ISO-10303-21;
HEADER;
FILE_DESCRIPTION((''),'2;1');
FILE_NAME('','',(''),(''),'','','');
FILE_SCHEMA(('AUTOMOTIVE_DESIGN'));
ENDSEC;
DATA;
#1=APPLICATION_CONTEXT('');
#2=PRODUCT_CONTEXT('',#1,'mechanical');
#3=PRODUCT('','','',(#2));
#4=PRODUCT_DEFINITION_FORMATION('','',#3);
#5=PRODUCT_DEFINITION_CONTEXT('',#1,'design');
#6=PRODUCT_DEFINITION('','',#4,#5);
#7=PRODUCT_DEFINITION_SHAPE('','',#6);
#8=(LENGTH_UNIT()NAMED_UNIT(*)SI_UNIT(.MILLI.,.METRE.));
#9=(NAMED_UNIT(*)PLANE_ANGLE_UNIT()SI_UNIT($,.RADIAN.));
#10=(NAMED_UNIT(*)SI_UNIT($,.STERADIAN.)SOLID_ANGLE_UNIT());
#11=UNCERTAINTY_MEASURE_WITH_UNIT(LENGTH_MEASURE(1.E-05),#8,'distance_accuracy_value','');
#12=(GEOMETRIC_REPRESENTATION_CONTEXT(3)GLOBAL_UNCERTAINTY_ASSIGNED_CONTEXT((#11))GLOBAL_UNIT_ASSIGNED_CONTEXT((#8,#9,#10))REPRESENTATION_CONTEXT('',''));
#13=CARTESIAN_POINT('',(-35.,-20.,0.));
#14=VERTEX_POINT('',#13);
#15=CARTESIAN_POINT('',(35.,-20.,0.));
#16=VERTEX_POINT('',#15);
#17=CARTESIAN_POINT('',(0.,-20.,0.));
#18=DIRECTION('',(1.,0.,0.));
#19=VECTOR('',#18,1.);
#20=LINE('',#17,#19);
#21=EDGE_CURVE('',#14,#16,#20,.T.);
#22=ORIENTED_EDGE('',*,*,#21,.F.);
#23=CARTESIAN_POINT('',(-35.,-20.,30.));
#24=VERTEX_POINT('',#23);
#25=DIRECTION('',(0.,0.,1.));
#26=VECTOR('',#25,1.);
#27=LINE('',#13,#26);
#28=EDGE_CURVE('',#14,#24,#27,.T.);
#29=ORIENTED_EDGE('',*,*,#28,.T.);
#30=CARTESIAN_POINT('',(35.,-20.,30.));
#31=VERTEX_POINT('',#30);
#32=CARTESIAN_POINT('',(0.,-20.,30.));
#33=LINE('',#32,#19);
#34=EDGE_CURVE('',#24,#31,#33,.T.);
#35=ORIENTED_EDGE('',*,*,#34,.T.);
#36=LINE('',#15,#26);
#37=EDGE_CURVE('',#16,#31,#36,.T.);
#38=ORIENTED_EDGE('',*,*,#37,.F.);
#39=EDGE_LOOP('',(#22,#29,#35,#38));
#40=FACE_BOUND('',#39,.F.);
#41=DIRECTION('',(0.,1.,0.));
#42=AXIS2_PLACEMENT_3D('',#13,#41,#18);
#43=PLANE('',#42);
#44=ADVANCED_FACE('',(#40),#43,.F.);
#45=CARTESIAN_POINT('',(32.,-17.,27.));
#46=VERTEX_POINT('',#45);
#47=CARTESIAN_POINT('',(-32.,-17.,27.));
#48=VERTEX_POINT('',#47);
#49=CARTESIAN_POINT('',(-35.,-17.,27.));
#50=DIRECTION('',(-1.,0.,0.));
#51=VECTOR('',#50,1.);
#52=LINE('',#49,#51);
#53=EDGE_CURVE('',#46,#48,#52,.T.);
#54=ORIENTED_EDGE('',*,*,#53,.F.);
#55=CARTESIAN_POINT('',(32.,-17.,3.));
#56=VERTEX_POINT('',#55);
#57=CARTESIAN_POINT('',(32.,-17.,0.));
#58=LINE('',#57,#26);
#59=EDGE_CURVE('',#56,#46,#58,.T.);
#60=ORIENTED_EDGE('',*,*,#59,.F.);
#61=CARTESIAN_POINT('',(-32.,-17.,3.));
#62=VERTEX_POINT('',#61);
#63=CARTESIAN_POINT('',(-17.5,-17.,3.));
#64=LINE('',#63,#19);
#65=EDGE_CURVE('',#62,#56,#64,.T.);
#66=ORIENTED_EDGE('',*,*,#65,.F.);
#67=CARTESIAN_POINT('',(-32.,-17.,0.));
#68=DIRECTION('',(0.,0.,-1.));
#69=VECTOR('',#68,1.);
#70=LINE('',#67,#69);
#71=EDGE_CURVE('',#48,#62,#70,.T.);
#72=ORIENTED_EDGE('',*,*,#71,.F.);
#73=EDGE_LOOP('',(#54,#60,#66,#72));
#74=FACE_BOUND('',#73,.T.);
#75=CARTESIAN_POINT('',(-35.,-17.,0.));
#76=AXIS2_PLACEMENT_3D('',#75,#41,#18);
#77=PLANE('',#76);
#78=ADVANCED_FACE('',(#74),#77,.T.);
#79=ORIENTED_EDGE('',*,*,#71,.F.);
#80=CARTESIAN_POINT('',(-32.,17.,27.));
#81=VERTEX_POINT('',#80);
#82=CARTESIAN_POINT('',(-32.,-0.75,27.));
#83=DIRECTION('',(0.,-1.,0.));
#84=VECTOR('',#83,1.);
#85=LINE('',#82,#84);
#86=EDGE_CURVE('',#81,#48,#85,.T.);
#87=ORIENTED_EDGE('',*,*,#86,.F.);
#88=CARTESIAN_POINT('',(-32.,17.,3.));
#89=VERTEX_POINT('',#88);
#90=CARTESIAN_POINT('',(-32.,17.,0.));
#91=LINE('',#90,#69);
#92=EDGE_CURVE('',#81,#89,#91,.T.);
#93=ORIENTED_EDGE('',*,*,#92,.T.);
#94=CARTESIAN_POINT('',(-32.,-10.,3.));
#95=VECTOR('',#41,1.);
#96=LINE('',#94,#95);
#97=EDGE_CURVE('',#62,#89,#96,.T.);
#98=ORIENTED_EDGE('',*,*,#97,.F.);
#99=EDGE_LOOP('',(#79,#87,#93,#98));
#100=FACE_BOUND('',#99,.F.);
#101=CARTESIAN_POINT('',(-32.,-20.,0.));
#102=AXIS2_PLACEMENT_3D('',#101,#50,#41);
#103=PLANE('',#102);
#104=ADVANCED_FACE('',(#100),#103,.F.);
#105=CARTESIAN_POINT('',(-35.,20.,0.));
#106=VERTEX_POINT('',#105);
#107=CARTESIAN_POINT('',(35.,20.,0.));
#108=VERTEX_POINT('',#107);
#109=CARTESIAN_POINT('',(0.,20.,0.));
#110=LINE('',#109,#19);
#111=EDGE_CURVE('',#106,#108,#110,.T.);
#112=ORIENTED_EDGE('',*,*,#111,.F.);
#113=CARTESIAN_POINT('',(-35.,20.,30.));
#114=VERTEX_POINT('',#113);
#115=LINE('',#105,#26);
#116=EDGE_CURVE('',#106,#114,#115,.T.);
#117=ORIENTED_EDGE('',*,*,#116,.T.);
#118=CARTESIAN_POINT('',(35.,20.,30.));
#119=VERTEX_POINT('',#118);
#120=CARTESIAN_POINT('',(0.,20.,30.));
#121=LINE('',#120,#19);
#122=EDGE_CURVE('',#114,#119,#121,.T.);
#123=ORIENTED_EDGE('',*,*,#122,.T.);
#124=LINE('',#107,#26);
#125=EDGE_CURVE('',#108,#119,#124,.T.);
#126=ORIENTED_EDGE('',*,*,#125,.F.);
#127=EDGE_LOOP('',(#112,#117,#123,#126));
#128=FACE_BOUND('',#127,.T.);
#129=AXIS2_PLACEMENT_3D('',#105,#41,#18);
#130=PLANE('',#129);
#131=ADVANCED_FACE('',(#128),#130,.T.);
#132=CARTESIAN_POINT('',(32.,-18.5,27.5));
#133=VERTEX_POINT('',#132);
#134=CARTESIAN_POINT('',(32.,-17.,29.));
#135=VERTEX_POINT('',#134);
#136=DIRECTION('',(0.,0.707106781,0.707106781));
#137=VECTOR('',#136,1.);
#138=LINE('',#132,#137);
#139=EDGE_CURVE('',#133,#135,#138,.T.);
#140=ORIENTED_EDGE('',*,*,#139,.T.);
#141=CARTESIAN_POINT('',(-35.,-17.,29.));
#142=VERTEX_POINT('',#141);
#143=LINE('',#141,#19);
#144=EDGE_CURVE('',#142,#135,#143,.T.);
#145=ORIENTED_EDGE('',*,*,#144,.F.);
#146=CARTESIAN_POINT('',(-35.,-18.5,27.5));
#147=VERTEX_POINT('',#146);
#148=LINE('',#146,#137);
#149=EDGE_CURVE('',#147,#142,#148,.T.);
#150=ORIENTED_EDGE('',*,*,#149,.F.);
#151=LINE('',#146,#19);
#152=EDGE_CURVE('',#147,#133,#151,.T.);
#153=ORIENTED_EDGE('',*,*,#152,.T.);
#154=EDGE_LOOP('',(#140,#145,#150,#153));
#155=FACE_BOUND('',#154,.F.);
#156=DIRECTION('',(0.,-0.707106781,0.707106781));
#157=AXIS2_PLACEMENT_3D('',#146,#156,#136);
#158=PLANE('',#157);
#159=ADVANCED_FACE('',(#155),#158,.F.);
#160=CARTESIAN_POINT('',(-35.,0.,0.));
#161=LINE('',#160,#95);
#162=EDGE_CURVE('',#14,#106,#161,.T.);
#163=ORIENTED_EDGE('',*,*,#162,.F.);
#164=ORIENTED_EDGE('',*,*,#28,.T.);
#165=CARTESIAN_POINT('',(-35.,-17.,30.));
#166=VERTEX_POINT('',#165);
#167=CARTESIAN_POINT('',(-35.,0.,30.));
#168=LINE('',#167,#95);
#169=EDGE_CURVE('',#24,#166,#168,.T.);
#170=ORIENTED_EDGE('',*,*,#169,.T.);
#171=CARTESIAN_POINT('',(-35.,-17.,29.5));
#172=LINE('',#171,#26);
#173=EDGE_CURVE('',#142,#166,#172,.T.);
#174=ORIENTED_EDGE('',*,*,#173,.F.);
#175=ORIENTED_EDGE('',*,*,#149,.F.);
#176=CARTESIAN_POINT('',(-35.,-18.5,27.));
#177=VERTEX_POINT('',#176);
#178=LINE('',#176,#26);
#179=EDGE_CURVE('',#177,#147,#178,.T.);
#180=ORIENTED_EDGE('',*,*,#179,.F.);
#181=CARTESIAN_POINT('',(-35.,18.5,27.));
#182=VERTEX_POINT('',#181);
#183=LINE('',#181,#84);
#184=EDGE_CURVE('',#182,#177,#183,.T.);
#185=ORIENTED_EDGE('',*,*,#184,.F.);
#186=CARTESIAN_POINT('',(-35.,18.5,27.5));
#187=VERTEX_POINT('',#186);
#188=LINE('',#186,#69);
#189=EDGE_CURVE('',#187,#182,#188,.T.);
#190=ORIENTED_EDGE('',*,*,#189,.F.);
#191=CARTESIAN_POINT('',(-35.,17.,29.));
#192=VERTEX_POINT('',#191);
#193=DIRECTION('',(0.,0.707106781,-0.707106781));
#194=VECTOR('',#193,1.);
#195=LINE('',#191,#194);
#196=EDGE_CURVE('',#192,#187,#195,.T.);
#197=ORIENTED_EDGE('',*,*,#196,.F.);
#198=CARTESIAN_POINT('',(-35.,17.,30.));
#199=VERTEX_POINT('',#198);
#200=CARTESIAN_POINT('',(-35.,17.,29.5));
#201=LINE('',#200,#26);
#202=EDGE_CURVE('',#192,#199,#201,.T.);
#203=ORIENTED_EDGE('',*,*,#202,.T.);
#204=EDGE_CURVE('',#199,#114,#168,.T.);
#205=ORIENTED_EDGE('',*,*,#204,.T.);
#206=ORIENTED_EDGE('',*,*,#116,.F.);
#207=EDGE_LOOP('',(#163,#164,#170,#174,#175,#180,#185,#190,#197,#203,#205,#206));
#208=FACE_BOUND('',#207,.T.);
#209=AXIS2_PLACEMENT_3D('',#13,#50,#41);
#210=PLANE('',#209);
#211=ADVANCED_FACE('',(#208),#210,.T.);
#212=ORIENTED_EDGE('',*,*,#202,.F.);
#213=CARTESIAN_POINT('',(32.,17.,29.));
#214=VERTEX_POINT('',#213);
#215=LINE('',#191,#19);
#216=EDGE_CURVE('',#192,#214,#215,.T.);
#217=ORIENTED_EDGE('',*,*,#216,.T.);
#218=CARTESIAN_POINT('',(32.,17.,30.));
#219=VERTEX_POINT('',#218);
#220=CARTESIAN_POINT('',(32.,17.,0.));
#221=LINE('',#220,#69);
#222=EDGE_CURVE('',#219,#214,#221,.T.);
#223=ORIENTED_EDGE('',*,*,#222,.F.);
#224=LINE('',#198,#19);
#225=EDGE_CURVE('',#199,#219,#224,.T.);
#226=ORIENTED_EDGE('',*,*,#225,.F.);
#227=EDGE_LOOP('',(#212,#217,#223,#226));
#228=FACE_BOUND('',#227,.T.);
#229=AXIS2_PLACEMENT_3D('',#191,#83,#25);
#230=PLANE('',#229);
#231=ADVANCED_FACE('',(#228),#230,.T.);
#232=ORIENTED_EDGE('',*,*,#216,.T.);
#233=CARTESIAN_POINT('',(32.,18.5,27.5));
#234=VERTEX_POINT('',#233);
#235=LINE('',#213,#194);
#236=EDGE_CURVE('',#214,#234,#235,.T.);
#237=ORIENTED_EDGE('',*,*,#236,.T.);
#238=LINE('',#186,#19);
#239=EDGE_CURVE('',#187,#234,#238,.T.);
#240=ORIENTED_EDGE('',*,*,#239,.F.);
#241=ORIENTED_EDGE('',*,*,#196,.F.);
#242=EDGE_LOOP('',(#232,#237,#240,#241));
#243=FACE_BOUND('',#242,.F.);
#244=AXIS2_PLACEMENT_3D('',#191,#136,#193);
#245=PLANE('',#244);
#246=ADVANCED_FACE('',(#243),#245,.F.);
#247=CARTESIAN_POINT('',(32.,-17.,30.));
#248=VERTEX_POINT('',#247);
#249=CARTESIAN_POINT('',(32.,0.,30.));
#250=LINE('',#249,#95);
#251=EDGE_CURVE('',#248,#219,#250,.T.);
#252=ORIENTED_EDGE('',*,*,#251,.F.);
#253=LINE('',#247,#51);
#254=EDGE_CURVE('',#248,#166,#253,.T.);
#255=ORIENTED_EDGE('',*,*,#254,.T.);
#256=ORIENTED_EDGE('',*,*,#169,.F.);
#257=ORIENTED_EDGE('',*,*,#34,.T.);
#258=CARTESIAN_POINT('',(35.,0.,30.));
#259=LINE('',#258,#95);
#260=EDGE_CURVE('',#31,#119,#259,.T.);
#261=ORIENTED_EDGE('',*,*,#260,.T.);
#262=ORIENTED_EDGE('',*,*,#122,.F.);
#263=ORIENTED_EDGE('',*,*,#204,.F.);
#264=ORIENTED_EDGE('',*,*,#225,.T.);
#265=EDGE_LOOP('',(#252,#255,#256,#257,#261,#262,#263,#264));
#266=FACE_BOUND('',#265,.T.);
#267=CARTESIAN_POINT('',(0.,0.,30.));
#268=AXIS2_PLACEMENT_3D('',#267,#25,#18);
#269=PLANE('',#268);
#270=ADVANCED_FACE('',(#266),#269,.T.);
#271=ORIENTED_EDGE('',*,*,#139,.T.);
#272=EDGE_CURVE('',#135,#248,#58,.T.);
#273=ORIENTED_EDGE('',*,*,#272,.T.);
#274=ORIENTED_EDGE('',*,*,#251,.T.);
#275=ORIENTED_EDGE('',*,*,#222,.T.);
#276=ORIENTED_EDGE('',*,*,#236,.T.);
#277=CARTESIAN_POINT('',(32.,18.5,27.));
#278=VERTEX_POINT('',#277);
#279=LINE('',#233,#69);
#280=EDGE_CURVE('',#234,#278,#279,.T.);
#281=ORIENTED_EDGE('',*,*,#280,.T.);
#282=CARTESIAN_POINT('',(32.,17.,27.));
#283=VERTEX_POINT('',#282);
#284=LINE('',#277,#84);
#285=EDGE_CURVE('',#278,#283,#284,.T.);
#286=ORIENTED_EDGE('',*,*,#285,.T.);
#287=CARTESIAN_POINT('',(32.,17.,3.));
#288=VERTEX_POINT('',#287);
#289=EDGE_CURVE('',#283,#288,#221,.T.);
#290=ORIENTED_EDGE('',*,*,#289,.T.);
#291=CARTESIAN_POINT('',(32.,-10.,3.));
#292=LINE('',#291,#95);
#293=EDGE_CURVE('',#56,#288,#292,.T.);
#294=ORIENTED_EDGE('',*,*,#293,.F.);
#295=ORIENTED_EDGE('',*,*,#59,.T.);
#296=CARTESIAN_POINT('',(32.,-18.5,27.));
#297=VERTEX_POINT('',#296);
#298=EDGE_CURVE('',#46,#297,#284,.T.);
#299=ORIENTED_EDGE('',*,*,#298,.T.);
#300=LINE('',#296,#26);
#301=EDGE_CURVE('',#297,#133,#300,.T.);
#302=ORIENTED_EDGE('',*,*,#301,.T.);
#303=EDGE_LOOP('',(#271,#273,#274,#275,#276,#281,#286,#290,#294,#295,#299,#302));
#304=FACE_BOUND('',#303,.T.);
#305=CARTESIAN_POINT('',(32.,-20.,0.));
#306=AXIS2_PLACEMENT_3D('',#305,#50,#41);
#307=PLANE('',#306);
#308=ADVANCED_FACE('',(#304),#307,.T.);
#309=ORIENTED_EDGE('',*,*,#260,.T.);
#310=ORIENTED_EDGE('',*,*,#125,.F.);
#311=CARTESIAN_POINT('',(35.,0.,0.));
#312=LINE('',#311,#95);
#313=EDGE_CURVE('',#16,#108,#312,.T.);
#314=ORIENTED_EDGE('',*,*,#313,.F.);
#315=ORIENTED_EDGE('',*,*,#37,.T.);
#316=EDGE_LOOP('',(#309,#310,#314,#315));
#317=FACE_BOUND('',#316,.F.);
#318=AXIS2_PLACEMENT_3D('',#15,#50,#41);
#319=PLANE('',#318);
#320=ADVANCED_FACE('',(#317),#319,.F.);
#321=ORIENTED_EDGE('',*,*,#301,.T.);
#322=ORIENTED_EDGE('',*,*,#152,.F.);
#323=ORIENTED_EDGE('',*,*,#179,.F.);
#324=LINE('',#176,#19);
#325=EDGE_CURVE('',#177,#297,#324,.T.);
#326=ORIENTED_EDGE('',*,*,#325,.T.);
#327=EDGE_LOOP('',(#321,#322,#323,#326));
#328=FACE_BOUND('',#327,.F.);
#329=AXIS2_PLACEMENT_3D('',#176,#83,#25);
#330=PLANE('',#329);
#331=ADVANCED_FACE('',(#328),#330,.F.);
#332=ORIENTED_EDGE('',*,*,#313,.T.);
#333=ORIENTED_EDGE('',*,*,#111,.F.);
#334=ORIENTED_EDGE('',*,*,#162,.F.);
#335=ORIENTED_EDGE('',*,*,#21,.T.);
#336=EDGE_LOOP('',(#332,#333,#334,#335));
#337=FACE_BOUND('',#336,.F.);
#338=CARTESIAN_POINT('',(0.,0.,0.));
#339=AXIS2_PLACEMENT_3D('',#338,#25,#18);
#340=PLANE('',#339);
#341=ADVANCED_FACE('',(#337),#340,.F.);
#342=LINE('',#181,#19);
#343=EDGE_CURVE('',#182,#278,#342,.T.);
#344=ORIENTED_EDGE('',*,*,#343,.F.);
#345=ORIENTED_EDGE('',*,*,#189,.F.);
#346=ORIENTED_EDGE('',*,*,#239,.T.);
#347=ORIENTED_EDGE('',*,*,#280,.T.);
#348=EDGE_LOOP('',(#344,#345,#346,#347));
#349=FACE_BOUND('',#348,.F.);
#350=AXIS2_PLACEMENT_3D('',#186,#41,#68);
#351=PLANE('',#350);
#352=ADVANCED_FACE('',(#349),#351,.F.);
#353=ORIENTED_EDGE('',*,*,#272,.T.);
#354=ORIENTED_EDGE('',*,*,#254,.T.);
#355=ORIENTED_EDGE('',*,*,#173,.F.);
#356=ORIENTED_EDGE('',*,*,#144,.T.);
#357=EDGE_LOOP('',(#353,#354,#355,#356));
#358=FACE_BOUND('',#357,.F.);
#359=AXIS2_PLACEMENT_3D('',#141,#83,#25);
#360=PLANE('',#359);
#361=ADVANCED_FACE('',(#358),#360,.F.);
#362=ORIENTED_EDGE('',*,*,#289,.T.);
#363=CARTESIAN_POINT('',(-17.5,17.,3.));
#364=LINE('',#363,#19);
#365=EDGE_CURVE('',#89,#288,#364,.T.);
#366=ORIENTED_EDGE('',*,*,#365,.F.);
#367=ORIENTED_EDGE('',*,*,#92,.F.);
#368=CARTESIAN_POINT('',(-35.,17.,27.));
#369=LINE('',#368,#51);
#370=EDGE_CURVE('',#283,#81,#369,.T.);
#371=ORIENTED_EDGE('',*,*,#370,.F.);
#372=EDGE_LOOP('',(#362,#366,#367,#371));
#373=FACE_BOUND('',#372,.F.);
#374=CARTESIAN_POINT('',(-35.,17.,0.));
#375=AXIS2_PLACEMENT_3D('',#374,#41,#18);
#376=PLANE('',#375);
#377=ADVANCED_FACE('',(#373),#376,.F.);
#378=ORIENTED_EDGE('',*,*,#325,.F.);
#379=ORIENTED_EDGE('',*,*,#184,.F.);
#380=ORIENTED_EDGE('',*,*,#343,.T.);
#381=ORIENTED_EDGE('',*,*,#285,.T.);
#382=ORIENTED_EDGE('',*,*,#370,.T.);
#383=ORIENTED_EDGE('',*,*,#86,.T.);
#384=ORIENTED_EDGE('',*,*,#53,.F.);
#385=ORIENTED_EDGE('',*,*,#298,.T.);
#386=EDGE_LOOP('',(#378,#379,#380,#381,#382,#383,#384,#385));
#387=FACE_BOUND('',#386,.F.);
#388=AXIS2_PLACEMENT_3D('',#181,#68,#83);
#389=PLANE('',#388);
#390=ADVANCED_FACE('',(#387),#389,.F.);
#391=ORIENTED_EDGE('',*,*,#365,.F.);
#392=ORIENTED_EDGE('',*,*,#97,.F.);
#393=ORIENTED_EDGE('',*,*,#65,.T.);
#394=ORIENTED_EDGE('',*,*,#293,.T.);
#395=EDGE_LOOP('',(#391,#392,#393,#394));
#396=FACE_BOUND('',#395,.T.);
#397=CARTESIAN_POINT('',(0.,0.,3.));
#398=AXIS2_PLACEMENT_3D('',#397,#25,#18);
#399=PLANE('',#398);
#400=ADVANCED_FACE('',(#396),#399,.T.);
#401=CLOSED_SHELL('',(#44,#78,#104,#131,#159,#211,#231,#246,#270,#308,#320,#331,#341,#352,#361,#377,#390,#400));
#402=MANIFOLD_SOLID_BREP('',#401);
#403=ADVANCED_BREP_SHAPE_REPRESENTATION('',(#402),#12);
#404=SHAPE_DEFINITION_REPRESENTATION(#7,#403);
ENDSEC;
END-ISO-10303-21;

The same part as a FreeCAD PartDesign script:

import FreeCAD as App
import Part
import Sketcher

V = App.Vector


def faces_at(feature, points):
    """Names of the faces that lie closest to the given points."""
    faces = feature.Shape.Faces
    near = lambda p: min(range(len(faces)), key=lambda i: faces[i].distToShape(Part.Vertex(*p))[0])
    return sorted({f"Face{near(p) + 1}" for p in points})

doc = App.newDocument("Part")
body = doc.addObject("PartDesign::Body", "Body")

sketch1 = body.newObject("Sketcher::SketchObject", "Sketch")
sketch1.AttachmentSupport = (doc.getObject("XY_Plane"), [""])
sketch1.MapMode = "FlatFace"
sketch1.addGeometry([
    Part.LineSegment(V(-35, 20, 0), V(-35, -20, 0)),
    Part.LineSegment(V(-35, -20, 0), V(35, -20, 0)),
    Part.LineSegment(V(35, -20, 0), V(35, 20, 0)),
    Part.LineSegment(V(35, 20, 0), V(-35, 20, 0)),
], False)
sketch1.addConstraint([
    Sketcher.Constraint("Coincident", 0, 2, 1, 1),
    Sketcher.Constraint("Coincident", 1, 2, 2, 1),
    Sketcher.Constraint("Coincident", 2, 2, 3, 1),
    Sketcher.Constraint("Coincident", 3, 2, 0, 1),
    Sketcher.Constraint("Vertical", 0),
    Sketcher.Constraint("Horizontal", 1),
    Sketcher.Constraint("Vertical", 2),
    Sketcher.Constraint("Horizontal", 3),
    Sketcher.Constraint("Symmetric", 0, 2, 2, 2, -1, 1),
    Sketcher.Constraint("DistanceX", 1, 1, 1, 2, 70.0),
    Sketcher.Constraint("DistanceY", 0, 2, 0, 1, 40.0),
])
pad1 = body.newObject("PartDesign::Pad", "Pad")
pad1.Profile = sketch1
pad1.Length = 30
doc.recompute()

thickness = body.newObject("PartDesign::Thickness", "Thickness")
thickness.Base = (pad1, faces_at(pad1, [(0, 0, 30)]))
thickness.Value = 3
thickness.Reversed = True
thickness.Join = "Arc"

sketch2 = body.newObject("Sketcher::SketchObject", "Sketch001")
sketch2.AttachmentSupport = (doc.getObject("YZ_Plane"), [""])
sketch2.MapMode = "FlatFace"
sketch2.AttachmentOffset = App.Placement(V(0, 0, -35), App.Rotation())
sketch2.addGeometry([
    Part.LineSegment(V(18.5, 27.5, 0), V(18.5, 27, 0)),
    Part.LineSegment(V(18.5, 27, 0), V(-18.5, 27, 0)),
    Part.LineSegment(V(-18.5, 27, 0), V(-18.5, 27.5, 0)),
    Part.LineSegment(V(-18.5, 27.5, 0), V(-17, 29, 0)),
    Part.LineSegment(V(-17, 29, 0), V(-17, 30, 0)),
    Part.LineSegment(V(-17, 30, 0), V(17, 30, 0)),
    Part.LineSegment(V(17, 30, 0), V(17, 29, 0)),
    Part.LineSegment(V(17, 29, 0), V(18.5, 27.5, 0)),
], False)
sketch2.addConstraint([
    Sketcher.Constraint("Coincident", 0, 2, 1, 1),
    Sketcher.Constraint("Coincident", 1, 2, 2, 1),
    Sketcher.Constraint("Coincident", 2, 2, 3, 1),
    Sketcher.Constraint("Coincident", 3, 2, 4, 1),
    Sketcher.Constraint("Coincident", 4, 2, 5, 1),
    Sketcher.Constraint("Coincident", 5, 2, 6, 1),
    Sketcher.Constraint("Coincident", 6, 2, 7, 1),
    Sketcher.Constraint("Coincident", 7, 2, 0, 1),
    Sketcher.Constraint("Vertical", 0),
    Sketcher.Constraint("Horizontal", 1),
    Sketcher.Constraint("Vertical", 2),
    Sketcher.Constraint("Vertical", 4),
    Sketcher.Constraint("Horizontal", 5),
    Sketcher.Constraint("Vertical", 6),
    Sketcher.Constraint("Symmetric", 3, 2, 6, 2, -2),
    Sketcher.Constraint("Symmetric", 2, 2, 7, 2, -2),
    Sketcher.Constraint("Perpendicular", 3, 7),
    Sketcher.Constraint("DistanceX", 1, 2, 1, 1, 37.0),
    Sketcher.Constraint("DistanceX", 5, 1, 5, 2, 34.0),
    Sketcher.Constraint("DistanceY", 4, 1, 4, 2, 1.0),
    Sketcher.Constraint("DistanceY", 0, 2, 0, 1, 0.5),
    Sketcher.Constraint("DistanceY", -1, 1, 0, 2, 27.0),
])
pocket1 = body.newObject("PartDesign::Pocket", "Pocket")
pocket1.Profile = sketch2
pocket1.Length = 67
pocket1.Reversed = True

doc.recompute()
